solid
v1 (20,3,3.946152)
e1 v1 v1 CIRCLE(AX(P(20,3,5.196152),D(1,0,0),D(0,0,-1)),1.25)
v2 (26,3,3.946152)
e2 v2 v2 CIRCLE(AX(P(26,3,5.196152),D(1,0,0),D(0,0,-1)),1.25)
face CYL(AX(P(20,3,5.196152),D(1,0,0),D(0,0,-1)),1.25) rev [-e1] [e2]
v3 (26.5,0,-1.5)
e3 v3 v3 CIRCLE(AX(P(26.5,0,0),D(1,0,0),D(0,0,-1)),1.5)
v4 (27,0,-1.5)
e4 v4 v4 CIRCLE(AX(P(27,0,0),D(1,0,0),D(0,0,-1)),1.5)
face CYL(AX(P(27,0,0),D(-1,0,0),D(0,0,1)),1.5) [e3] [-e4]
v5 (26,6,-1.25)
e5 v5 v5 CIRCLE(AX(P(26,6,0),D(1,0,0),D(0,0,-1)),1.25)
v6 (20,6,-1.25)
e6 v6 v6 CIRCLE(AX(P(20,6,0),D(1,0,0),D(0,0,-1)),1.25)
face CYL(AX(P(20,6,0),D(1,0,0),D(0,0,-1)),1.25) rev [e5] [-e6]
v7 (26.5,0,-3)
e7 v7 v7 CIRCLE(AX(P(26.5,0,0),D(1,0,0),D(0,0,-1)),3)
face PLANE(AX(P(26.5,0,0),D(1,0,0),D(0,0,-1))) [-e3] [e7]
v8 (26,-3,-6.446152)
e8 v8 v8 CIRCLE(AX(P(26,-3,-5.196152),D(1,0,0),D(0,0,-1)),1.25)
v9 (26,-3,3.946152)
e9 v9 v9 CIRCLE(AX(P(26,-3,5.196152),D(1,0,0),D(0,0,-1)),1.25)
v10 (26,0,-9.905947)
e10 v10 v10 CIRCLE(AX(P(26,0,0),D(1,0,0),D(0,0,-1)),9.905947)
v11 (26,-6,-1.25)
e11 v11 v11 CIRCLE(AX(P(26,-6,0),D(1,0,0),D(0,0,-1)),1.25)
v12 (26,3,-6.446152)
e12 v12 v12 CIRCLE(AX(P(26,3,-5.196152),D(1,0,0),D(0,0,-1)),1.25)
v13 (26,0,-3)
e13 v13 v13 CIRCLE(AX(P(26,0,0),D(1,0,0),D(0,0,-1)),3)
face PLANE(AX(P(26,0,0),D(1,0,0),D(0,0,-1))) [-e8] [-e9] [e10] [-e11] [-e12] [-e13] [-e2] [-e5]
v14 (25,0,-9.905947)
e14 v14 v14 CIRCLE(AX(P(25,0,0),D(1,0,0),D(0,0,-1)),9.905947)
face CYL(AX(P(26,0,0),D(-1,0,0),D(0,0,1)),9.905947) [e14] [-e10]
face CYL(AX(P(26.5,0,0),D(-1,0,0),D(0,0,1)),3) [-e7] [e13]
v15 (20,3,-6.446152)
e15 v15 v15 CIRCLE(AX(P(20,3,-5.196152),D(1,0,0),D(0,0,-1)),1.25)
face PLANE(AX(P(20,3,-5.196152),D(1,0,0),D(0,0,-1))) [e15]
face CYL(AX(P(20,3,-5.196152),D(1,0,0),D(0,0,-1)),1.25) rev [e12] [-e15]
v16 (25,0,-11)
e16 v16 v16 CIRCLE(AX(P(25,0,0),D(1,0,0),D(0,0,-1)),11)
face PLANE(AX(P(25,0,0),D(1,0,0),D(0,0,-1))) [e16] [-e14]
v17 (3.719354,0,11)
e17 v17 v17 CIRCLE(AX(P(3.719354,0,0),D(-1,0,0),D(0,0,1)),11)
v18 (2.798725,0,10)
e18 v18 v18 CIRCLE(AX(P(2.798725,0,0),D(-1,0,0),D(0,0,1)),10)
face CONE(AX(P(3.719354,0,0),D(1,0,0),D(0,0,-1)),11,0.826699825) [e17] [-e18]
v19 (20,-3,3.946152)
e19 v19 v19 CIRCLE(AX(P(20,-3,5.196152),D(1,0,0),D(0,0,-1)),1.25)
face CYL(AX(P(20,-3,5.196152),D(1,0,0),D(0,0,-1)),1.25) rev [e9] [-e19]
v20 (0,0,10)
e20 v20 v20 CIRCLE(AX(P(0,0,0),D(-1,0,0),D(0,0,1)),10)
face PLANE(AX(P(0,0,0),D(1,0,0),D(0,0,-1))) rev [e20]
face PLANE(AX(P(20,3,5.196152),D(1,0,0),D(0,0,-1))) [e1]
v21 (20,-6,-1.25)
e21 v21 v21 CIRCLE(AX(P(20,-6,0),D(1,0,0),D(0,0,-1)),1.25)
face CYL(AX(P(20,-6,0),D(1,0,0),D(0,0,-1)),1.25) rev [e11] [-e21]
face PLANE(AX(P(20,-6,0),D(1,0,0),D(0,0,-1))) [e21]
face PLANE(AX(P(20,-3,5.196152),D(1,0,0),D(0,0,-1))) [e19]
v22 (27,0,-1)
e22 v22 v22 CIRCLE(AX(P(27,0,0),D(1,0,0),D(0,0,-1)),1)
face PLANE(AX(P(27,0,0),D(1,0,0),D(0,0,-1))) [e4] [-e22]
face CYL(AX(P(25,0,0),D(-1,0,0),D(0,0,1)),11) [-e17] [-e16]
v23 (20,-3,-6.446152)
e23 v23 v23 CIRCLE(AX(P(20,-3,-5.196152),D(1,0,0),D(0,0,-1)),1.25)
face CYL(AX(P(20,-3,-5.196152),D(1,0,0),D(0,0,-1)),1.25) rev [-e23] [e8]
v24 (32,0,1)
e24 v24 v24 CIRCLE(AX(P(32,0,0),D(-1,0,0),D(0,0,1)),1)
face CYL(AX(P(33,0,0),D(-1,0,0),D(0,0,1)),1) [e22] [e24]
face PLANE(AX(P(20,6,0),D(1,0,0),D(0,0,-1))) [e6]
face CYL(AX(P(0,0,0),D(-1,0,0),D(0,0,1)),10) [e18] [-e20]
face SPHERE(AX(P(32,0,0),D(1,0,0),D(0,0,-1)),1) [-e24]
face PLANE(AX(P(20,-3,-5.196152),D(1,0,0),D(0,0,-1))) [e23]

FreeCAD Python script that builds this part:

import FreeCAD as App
import Part
import Sketcher

V = App.Vector
Q = App.Units.Quantity


def edges_at(feature, points):
    """Names of the edges that pass closest to the given points."""
    edges = feature.Shape.Edges
    near = lambda p: min(range(len(edges)), key=lambda i: edges[i].distToShape(Part.Vertex(*p))[0])
    return sorted({f"Edge{near(p) + 1}" for p in points})

doc = App.newDocument("Part")
params = doc.addObject("Spreadsheet::Sheet", "Params")
for row, (alias, value) in enumerate([
    ("sketch1_diameter", "22 mm"),
    ("pad1_length", "25 mm"),
    ("sketch2_diameter", "6 mm"),
    ("pad2_length", "1.5 mm"),
    ("sketch3_diameter", "3 mm"),
    ("pad3_length", "0.5 mm"),
    ("sketch4_diameter", "2 mm"),
    ("pad4_length", "6 mm"),
    ("fillet_radius", "1 mm"),
    ("pad5_length", "1 mm"),
    ("sketch6_height", "1 mm"),
    ("groove_angle", "360 deg"),
    ("sketch7_diameter", "2.5 mm"),
    ("pocket1_length", "6 mm"),
], start=1):
    params.set(f"A{row}", alias)
    params.set(f"B{row}", "=" + value)
    params.setAlias(f"B{row}", alias)

body = doc.addObject("PartDesign::Body", "Body")

# Sketch on YZ plane
sketch1 = body.newObject("Sketcher::SketchObject", "Sketch")
sketch1.AttachmentSupport = (doc.getObject("YZ_Plane"), [""])
sketch1.MapMode = "FlatFace"
sketch1.addGeometry(Part.Circle(V(0, 0, 0), V(0, 0, 1), 11), False)
sketch1.addConstraint(Sketcher.Constraint("Coincident", 0, 3, -1, 1))
sketch1.addConstraint(Sketcher.Constraint("Diameter", 0, Q("22 mm")))
sketch1.setExpression("Constraints[1]", "Params.sketch1_diameter")
pad1 = body.newObject("PartDesign::Pad", "Pad")
pad1.Profile = sketch1
pad1.setExpression("Length", "Params.pad1_length")

# Sketch on YZ plane
sketch2 = body.newObject("Sketcher::SketchObject", "Sketch001")
sketch2.AttachmentSupport = (doc.getObject("YZ_Plane"), [""])
sketch2.MapMode = "FlatFace"
sketch2.AttachmentOffset = App.Placement(V(0, 0, 25), App.Rotation())
sketch2.addGeometry(Part.Circle(V(0, 0, 0), V(0, 0, 1), 3), False)
sketch2.addConstraint(Sketcher.Constraint("Coincident", 0, 3, -1, 1))
sketch2.addConstraint(Sketcher.Constraint("Diameter", 0, Q("6 mm")))
sketch2.setExpression("Constraints[1]", "Params.sketch2_diameter")
pad2 = body.newObject("PartDesign::Pad", "Pad001")
pad2.Profile = sketch2
pad2.setExpression("Length", "Params.pad2_length")

# Sketch on YZ plane
sketch3 = body.newObject("Sketcher::SketchObject", "Sketch002")
sketch3.AttachmentSupport = (doc.getObject("YZ_Plane"), [""])
sketch3.MapMode = "FlatFace"
sketch3.AttachmentOffset = App.Placement(V(0, 0, 26.5), App.Rotation())
sketch3.addGeometry(Part.Circle(V(0, 0, 0), V(0, 0, 1), 1.5), False)
sketch3.addConstraint(Sketcher.Constraint("Coincident", 0, 3, -1, 1))
sketch3.addConstraint(Sketcher.Constraint("Diameter", 0, Q("3 mm")))
sketch3.setExpression("Constraints[1]", "Params.sketch3_diameter")
pad3 = body.newObject("PartDesign::Pad", "Pad002")
pad3.Profile = sketch3
pad3.setExpression("Length", "Params.pad3_length")

# Sketch on YZ plane
sketch4 = body.newObject("Sketcher::SketchObject", "Sketch003")
sketch4.AttachmentSupport = (doc.getObject("YZ_Plane"), [""])
sketch4.MapMode = "FlatFace"
sketch4.AttachmentOffset = App.Placement(V(0, 0, 27), App.Rotation())
sketch4.addGeometry(Part.Circle(V(0, 0, 0), V(0, 0, 1), 1), False)
sketch4.addConstraint(Sketcher.Constraint("Coincident", 0, 3, -1, 1))
sketch4.addConstraint(Sketcher.Constraint("Diameter", 0, Q("2 mm")))
sketch4.setExpression("Constraints[1]", "Params.sketch4_diameter")
pad4 = body.newObject("PartDesign::Pad", "Pad003")
pad4.Profile = sketch4
pad4.setExpression("Length", "Params.pad4_length")
doc.recompute()

fillet = body.newObject("PartDesign::Fillet", "Fillet")
fillet.Base = (pad4, edges_at(pad4, [(33, 0, 1)]))
fillet.setExpression("Radius", "Params.fillet_radius")

# Sketch on YZ plane
sketch5 = body.newObject("Sketcher::SketchObject", "Sketch004")
sketch5.AttachmentSupport = (doc.getObject("YZ_Plane"), [""])
sketch5.MapMode = "FlatFace"
sketch5.AttachmentOffset = App.Placement(V(0, 0, 25), App.Rotation())
sketch5.addGeometry(Part.Circle(V(0, 0, 0), V(0, 0, 1), 10), False)
sketch5.addConstraint(Sketcher.Constraint("Coincident", 0, 3, -1, 1))
sketch5.addConstraint(Sketcher.Constraint("Diameter", 0, Q("19.811894 mm")))
pad5 = body.newObject("PartDesign::Pad", "Pad004")
pad5.Profile = sketch5
pad5.setExpression("Length", "Params.pad5_length")

# Sketch on XY plane
sketch6 = body.newObject("Sketcher::SketchObject", "Sketch005")
sketch6.AttachmentSupport = (doc.getObject("XY_Plane"), [""])
sketch6.MapMode = "FlatFace"
sketch6.addGeometry(Part.LineSegment(V(3.7, 11, 0), V(0, 11, 0)), False)
sketch6.addGeometry(Part.LineSegment(V(0, 11, 0), V(0, 10, 0)), False)
sketch6.addGeometry(Part.LineSegment(V(0, 10, 0), V(2.8, 10, 0)), False)
sketch6.addGeometry(Part.LineSegment(V(2.8, 10, 0), V(3.7, 11, 0)), False)
sketch6.addConstraint(Sketcher.Constraint("Coincident", 0, 2, 1, 1))
sketch6.addConstraint(Sketcher.Constraint("Coincident", 1, 2, 2, 1))
sketch6.addConstraint(Sketcher.Constraint("Coincident", 2, 2, 3, 1))
sketch6.addConstraint(Sketcher.Constraint("Coincident", 3, 2, 0, 1))
sketch6.addConstraint(Sketcher.Constraint("Horizontal", 0))
sketch6.addConstraint(Sketcher.Constraint("Vertical", 1))
sketch6.addConstraint(Sketcher.Constraint("Horizontal", 2))
sketch6.addConstraint(Sketcher.Constraint("PointOnObject", 0, 2, -2))
sketch6.addConstraint(Sketcher.Constraint("DistanceY", 1, 2, 1, 1, Q("1 mm")))
sketch6.addConstraint(Sketcher.Constraint("DistanceY", -1, 1, 0, 2, Q("11 mm")))
sketch6.addConstraint(Sketcher.Constraint("Distance", 3, Q("1.359249 mm")))
sketch6.addConstraint(Sketcher.Constraint("DistanceX", 0, 2, 0, 1, Q("3.719354 mm")))
sketch6.setExpression("Constraints[8]", "Params.sketch6_height")
groove = body.newObject("PartDesign::Groove", "Groove")
groove.Profile = sketch6
groove.ReferenceAxis = (sketch6, ["H_Axis"])
groove.setExpression("Angle", "Params.groove_angle")

# Sketch on YZ plane
sketch7 = body.newObject("Sketcher::SketchObject", "Sketch006")
sketch7.AttachmentSupport = (doc.getObject("YZ_Plane"), [""])
sketch7.MapMode = "FlatFace"
sketch7.AttachmentOffset = App.Placement(V(0, 0, 26), App.Rotation())
sketch7.addGeometry(Part.Circle(V(6, 0, 0), V(0, 0, 1), 1.2), False)
sketch7.addGeometry(Part.Circle(V(3, -5.2, 0), V(0, 0, 1), 1.2), False)
sketch7.addGeometry(Part.Circle(V(-3, -5.2, 0), V(0, 0, 1), 1.2), False)
sketch7.addGeometry(Part.Circle(V(-6, 0, 0), V(0, 0, 1), 1.2), False)
sketch7.addGeometry(Part.Circle(V(-3, 5.2, 0), V(0, 0, 1), 1.2), False)
sketch7.addGeometry(Part.Circle(V(3, 5.2, 0), V(0, 0, 1), 1.2), False)
sketch7.addConstraint(Sketcher.Constraint("Equal", 0, 1))
sketch7.addConstraint(Sketcher.Constraint("Equal", 1, 2))
sketch7.addConstraint(Sketcher.Constraint("Equal", 2, 3))
sketch7.addConstraint(Sketcher.Constraint("Equal", 3, 4))
sketch7.addConstraint(Sketcher.Constraint("Equal", 4, 5))
sketch7.addConstraint(Sketcher.Constraint("Symmetric", 0, 3, 3, 3, -1, 1))
sketch7.addConstraint(Sketcher.Constraint("Symmetric", 1, 3, 4, 3, -1, 1))
sketch7.addConstraint(Sketcher.Constraint("Symmetric", 2, 3, 5, 3, -1, 1))
sketch7.addConstraint(Sketcher.Constraint("Symmetric", 1, 3, 2, 3, -2))
sketch7.addConstraint(Sketcher.Constraint("PointOnObject", 0, 3, -1))
sketch7.addConstraint(Sketcher.Constraint("Diameter", 0, Q("2.5 mm")))
sketch7.addConstraint(Sketcher.Constraint("DistanceX", -1, 1, 0, 3, Q("6 mm")))
sketch7.addConstraint(Sketcher.Constraint("DistanceX", -1, 1, 1, 3, Q("3 mm")))
sketch7.addConstraint(Sketcher.Constraint("DistanceY", 1, 3, -1, 1, Q("5.196152 mm")))
sketch7.setExpression("Constraints[10]", "Params.sketch7_diameter")
pocket1 = body.newObject("PartDesign::Pocket", "Pocket")
pocket1.Profile = sketch7
pocket1.setExpression("Length", "Params.pocket1_length")

doc.recompute()
